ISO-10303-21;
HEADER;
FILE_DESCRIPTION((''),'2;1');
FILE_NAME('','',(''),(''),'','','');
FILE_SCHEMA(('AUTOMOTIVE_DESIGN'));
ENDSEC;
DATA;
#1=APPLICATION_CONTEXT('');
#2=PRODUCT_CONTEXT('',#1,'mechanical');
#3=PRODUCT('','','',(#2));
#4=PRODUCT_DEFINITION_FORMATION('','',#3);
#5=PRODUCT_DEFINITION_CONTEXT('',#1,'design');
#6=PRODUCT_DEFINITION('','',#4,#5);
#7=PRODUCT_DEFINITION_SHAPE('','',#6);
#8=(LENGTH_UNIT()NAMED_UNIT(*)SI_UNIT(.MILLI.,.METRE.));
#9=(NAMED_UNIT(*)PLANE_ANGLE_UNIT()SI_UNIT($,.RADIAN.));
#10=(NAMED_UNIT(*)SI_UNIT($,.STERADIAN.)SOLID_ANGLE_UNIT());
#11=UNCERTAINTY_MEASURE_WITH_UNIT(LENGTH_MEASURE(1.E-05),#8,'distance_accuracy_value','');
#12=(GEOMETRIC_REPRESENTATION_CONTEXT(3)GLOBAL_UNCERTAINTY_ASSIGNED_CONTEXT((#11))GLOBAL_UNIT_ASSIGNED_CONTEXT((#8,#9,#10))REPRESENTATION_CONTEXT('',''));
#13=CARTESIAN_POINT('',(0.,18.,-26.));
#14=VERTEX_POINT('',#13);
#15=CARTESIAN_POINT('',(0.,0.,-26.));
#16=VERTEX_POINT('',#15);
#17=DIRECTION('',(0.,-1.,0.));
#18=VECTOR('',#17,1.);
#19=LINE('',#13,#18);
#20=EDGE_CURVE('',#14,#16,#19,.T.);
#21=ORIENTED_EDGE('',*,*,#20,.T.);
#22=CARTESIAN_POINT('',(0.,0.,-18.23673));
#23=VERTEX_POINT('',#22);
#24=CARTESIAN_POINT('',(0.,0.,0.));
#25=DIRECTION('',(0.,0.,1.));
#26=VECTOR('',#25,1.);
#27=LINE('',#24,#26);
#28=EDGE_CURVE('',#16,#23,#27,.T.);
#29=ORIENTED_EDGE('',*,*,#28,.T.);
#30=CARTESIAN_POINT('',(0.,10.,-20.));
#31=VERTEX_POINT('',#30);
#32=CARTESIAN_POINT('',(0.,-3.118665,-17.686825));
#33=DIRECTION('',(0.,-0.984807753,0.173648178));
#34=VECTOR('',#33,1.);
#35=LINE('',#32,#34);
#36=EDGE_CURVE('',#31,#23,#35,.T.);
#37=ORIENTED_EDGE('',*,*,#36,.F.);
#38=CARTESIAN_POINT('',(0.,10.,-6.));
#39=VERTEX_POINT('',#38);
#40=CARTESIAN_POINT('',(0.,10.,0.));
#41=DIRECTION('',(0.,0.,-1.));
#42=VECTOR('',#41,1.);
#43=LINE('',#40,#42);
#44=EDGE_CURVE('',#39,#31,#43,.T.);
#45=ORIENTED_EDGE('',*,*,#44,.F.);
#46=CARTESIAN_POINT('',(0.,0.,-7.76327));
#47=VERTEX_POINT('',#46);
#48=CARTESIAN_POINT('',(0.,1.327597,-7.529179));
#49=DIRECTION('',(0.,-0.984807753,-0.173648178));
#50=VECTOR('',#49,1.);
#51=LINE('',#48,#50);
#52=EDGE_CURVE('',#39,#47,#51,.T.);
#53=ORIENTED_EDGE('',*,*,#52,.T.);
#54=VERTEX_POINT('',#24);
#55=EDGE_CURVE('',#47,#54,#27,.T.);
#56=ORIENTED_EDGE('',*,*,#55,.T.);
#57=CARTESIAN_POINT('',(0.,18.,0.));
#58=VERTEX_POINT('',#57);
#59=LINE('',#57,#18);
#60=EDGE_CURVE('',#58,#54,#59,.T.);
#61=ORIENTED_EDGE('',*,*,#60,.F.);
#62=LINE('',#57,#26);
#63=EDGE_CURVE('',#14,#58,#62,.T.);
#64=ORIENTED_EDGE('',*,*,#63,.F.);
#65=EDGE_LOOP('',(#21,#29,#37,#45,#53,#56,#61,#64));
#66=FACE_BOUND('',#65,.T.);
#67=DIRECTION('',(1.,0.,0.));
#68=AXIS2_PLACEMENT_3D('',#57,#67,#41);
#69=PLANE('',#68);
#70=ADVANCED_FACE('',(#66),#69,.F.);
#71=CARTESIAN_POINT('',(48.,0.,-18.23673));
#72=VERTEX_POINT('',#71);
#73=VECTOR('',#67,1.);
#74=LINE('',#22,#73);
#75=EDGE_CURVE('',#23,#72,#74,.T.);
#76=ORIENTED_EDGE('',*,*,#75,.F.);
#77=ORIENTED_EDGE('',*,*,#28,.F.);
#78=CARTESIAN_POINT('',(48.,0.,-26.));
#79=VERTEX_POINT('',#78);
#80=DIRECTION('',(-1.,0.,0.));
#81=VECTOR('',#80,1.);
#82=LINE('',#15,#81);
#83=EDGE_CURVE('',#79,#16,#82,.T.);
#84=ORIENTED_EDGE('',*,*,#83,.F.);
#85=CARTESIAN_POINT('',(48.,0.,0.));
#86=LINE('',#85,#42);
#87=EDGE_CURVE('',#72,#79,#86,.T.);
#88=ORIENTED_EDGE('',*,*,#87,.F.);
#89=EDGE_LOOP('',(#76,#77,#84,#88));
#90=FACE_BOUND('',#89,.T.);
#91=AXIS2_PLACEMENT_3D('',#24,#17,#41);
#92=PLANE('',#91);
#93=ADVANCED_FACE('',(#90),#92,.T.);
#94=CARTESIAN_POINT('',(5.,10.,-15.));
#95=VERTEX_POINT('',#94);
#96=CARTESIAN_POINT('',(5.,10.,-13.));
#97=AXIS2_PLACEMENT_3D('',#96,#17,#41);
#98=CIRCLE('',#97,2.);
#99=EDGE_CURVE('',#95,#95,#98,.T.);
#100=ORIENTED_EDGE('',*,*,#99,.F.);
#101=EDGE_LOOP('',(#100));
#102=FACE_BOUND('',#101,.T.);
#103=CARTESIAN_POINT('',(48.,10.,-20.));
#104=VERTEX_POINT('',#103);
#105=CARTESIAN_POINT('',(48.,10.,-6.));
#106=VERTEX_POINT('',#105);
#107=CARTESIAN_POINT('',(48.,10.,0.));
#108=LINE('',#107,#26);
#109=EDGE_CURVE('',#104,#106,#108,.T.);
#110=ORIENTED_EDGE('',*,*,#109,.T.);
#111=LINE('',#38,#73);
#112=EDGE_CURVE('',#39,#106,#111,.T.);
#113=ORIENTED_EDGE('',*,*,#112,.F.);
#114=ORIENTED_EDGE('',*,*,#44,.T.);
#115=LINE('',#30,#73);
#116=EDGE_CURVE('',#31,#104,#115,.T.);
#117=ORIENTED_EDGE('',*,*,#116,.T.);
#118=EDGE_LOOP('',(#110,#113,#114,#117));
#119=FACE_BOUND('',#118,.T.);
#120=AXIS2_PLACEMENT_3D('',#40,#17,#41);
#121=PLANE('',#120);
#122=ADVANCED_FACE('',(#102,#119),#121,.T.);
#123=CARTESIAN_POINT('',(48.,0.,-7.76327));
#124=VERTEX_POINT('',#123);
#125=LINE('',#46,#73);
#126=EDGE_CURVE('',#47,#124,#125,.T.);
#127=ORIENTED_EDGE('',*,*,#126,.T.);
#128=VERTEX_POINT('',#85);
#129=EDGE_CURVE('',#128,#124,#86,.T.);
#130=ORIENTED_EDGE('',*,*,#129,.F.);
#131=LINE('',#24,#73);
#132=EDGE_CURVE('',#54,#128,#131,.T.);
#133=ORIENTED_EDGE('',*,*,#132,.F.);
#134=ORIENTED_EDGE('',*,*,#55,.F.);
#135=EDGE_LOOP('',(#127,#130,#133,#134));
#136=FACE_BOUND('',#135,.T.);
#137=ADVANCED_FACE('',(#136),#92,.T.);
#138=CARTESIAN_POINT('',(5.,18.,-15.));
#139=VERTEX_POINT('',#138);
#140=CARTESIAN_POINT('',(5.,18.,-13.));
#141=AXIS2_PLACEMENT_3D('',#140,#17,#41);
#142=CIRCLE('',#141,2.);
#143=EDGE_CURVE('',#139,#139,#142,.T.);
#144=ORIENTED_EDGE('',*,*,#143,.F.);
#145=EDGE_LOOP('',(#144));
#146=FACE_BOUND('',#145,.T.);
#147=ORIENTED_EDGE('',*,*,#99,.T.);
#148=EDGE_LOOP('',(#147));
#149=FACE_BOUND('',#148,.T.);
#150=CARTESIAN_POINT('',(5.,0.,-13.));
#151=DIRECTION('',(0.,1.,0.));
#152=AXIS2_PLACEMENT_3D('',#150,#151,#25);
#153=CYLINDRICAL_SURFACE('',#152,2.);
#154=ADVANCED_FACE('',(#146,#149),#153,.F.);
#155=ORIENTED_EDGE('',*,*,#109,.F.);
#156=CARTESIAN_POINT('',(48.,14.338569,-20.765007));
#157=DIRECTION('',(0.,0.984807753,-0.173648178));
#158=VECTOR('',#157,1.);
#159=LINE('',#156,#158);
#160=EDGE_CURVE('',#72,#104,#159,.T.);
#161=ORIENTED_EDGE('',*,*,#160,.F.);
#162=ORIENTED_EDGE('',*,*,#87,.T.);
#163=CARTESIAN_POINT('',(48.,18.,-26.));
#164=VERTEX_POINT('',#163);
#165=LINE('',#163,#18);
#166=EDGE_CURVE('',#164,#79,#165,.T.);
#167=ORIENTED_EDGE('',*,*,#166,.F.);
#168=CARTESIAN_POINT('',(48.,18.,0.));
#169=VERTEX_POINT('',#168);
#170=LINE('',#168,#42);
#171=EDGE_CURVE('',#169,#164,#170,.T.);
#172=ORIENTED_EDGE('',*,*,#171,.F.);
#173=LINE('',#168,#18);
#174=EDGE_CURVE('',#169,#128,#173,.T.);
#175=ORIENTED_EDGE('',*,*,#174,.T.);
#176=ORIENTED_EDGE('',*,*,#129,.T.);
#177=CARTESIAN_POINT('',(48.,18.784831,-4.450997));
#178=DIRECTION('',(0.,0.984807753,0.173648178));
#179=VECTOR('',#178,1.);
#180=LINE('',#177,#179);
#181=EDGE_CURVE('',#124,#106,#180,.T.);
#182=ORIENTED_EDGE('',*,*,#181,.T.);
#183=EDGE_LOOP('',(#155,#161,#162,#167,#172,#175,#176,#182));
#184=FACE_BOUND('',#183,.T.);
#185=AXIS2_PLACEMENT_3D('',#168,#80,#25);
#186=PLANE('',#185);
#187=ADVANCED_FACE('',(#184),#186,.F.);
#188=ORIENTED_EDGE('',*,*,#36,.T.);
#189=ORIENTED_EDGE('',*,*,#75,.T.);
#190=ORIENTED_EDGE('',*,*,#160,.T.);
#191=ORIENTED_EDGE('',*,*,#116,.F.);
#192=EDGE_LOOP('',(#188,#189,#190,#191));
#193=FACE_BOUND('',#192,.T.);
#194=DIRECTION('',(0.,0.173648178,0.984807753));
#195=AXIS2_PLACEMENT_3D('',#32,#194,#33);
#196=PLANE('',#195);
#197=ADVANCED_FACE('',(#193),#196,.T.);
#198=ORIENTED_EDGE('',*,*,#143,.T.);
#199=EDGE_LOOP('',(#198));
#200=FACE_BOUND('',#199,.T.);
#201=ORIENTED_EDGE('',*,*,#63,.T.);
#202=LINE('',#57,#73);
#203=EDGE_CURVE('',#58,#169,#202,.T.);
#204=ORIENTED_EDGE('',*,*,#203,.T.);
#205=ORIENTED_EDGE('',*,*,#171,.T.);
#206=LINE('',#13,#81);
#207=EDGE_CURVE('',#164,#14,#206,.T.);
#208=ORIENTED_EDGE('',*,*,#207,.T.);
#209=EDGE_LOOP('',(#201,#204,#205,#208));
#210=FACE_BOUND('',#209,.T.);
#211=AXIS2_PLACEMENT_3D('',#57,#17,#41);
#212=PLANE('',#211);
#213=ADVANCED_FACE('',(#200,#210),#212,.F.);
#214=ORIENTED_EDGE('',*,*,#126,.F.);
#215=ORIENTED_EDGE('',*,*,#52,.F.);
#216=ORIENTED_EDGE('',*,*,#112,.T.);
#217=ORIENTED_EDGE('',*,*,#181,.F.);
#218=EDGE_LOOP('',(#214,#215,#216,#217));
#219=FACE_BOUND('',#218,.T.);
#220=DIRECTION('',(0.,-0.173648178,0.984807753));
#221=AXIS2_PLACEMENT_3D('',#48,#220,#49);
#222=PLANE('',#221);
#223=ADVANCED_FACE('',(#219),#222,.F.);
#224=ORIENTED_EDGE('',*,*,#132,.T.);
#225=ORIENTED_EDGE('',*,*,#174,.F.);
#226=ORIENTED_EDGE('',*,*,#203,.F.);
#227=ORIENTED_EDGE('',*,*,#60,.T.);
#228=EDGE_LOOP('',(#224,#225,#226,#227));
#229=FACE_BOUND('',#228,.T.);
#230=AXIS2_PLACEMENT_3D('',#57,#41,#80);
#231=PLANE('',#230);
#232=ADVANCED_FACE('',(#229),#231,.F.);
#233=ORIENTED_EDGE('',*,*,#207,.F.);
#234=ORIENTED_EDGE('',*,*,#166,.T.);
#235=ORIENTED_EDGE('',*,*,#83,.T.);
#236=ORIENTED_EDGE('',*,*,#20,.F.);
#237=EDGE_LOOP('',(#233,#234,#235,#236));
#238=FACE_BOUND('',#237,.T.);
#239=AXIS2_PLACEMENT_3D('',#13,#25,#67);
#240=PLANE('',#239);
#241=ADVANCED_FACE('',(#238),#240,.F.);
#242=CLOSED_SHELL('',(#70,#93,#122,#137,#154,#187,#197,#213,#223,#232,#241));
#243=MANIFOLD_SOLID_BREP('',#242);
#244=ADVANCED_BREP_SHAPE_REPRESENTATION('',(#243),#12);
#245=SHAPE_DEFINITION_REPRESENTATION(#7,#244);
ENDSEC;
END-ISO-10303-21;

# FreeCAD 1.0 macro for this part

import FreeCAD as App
import Part
import Sketcher
from FreeCAD import Vector
Q = App.Units.Quantity

doc = App.newDocument("Part")
body = doc.addObject("PartDesign::Body", "Body")

sketch1 = body.newObject("Sketcher::SketchObject", "Sketch")
sketch1.AttachmentSupport = (doc.getObject("XZ_Plane"), [""])
sketch1.MapMode = "FlatFace"
sketch1.addGeometry([
    Part.LineSegment(Vector(0, -26, 0), Vector(0, 0, 0)),
    Part.LineSegment(Vector(0, 0, 0), Vector(48, 0, 0)),
    Part.LineSegment(Vector(48, 0, 0), Vector(48, -26, 0)),
    Part.LineSegment(Vector(48, -26, 0), Vector(0, -26, 0)),
], False)
sketch1.addConstraint([
    Sketcher.Constraint("Coincident", 0, 2, 1, 1),
    Sketcher.Constraint("Coincident", 1, 2, 2, 1),
    Sketcher.Constraint("Coincident", 2, 2, 3, 1),
    Sketcher.Constraint("Coincident", 3, 2, 0, 1),
    Sketcher.Constraint("Vertical", 0),
    Sketcher.Constraint("Horizontal", 1),
    Sketcher.Constraint("Vertical", 2),
    Sketcher.Constraint("Horizontal", 3),
    Sketcher.Constraint("Coincident", 0, 2, -1, 1),
    Sketcher.Constraint("DistanceX", 1, 1, 1, 2, 48.0),
    Sketcher.Constraint("DistanceY", 0, 1, 0, 2, 26.0),
])
pad1 = body.newObject("PartDesign::Pad", "Pad")
pad1.Profile = sketch1
pad1.Length = 18
pad1.Reversed = True

sketch2 = body.newObject("Sketcher::SketchObject", "Sketch001")
sketch2.AttachmentSupport = (doc.getObject("YZ_Plane"), [""])
sketch2.MapMode = "FlatFace"
sketch2.AttachmentOffset = App.Placement(Vector(0, 0, 48), App.Rotation())
sketch2.addGeometry([
    Part.LineSegment(Vector(10, -20, 0), Vector(10, -6, 0)),
    Part.LineSegment(Vector(10, -6, 0), Vector(0, -8, 0)),
    Part.LineSegment(Vector(0, -8, 0), Vector(0, -18, 0)),
    Part.LineSegment(Vector(0, -18, 0), Vector(10, -20, 0)),
], False)
sketch2.addConstraint([
    Sketcher.Constraint("Coincident", 0, 2, 1, 1),
    Sketcher.Constraint("Coincident", 1, 2, 2, 1),
    Sketcher.Constraint("Coincident", 2, 2, 3, 1),
    Sketcher.Constraint("Coincident", 3, 2, 0, 1),
    Sketcher.Constraint("Vertical", 0),
    Sketcher.Constraint("Vertical", 2),
    Sketcher.Constraint("PointOnObject", 1, 2, -2),
    Sketcher.Constraint("Equal", 1, 3),
    Sketcher.Constraint("DistanceY", 0, 1, 0, 2, 14.0),
    Sketcher.Constraint("Angle", 1, Q("-170 deg")),
    Sketcher.Constraint("DistanceX", -1, 1, 0, 2, 10.0),
    Sketcher.Constraint("DistanceY", 0, 2, -1, 1, 6.0),
])
pocket1 = body.newObject("PartDesign::Pocket", "Pocket")
pocket1.Profile = sketch2
pocket1.Type = "ThroughAll"
pocket1.Midplane = True

sketch3 = body.newObject("Sketcher::SketchObject", "Sketch002")
sketch3.AttachmentSupport = (doc.getObject("XZ_Plane"), [""])
sketch3.MapMode = "FlatFace"
sketch3.AttachmentOffset = App.Placement(Vector(0, 0, -18), App.Rotation())
sketch3.addGeometry(Part.Circle(Vector(5, -13, 0), Vector(0, 0, 1), 2), False)
sketch3.addConstraint([
    Sketcher.Constraint("Diameter", 0, 4.0),
    Sketcher.Constraint("DistanceX", -1, 1, 0, 3, 5.0),
    Sketcher.Constraint("DistanceY", 0, 3, -1, 1, 13.0),
])
pocket2 = body.newObject("PartDesign::Pocket", "Pocket001")
pocket2.Profile = sketch3
pocket2.Type = "ThroughAll"
pocket2.Midplane = True

doc.recompute()
